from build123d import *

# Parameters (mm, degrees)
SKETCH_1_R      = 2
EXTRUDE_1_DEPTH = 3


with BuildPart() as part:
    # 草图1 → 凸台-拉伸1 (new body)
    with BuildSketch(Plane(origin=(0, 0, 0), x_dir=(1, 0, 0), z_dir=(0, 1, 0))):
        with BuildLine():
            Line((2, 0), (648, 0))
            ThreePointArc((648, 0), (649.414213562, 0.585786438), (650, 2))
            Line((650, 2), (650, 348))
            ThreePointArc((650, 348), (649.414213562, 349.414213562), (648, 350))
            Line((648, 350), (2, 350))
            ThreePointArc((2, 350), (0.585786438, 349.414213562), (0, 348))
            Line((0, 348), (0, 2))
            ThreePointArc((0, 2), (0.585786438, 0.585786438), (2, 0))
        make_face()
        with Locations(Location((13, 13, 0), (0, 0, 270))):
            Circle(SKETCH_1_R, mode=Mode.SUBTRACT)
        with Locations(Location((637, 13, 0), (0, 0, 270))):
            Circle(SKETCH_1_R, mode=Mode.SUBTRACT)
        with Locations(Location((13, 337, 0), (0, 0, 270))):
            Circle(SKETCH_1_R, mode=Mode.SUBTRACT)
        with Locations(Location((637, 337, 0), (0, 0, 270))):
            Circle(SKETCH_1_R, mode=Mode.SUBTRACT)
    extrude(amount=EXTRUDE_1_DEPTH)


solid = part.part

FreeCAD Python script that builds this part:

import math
import FreeCAD as App
import Part
import Sketcher
Q = App.Units.Quantity

doc = App.newDocument("Part")
params = doc.addObject("Spreadsheet::Sheet", "Params")
for row, (alias, value) in enumerate([
    ("sketch1_diameter", "4 mm"),
    ("sketch1_width", "646 mm"),
    ("sketch1_height", "346 mm"),
    ("pad1_length", "3 mm"),
], start=1):
    params.set(f"A{row}", alias)
    params.set(f"B{row}", "=" + value)
    params.setAlias(f"B{row}", alias)

body = doc.addObject("PartDesign::Body", "Body")

# Sketch on XZ plane
sketch1 = doc.addObject("Sketcher::SketchObject", "Sketch")
body.addObject(sketch1)
sketch1.AttachmentSupport = (doc.XZ_Plane, [""])
sketch1.MapMode = "FlatFace"
sketch1.addGeometry(Part.LineSegment(App.Vector(2, 0, 0), App.Vector(648, 0, 0)), False)
sketch1.addGeometry(Part.ArcOfCircle(Part.Circle(App.Vector(648, -2, 0), App.Vector(0, 0, 1), 2), math.radians(0), math.radians(90)), False)
sketch1.addGeometry(Part.LineSegment(App.Vector(650, -2, 0), App.Vector(650, -348, 0)), False)
sketch1.addGeometry(Part.ArcOfCircle(Part.Circle(App.Vector(648, -348, 0), App.Vector(0, 0, 1), 2), math.radians(-90), math.radians(0)), False)
sketch1.addGeometry(Part.LineSegment(App.Vector(648, -350, 0), App.Vector(2, -350, 0)), False)
sketch1.addGeometry(Part.ArcOfCircle(Part.Circle(App.Vector(2, -348, 0), App.Vector(0, 0, 1), 2), math.radians(-180), math.radians(-90)), False)
sketch1.addGeometry(Part.LineSegment(App.Vector(0, -348, 0), App.Vector(0, -2, 0)), False)
sketch1.addGeometry(Part.ArcOfCircle(Part.Circle(App.Vector(2, -2, 0), App.Vector(0, 0, 1), 2), math.radians(90), math.radians(180)), False)
sketch1.addGeometry(Part.Circle(App.Vector(13, -13, 0), App.Vector(0, 0, 1), 2), False)
sketch1.addGeometry(Part.Circle(App.Vector(637, -13, 0), App.Vector(0, 0, 1), 2), False)
sketch1.addGeometry(Part.Circle(App.Vector(13, -337, 0), App.Vector(0, 0, 1), 2), False)
sketch1.addGeometry(Part.Circle(App.Vector(637, -337, 0), App.Vector(0, 0, 1), 2), False)
sketch1.addConstraint(Sketcher.Constraint("Tangent", 0, 2, 1, 2))
sketch1.addConstraint(Sketcher.Constraint("Tangent", 1, 1, 2, 1))
sketch1.addConstraint(Sketcher.Constraint("Tangent", 2, 2, 3, 2))
sketch1.addConstraint(Sketcher.Constraint("Tangent", 3, 1, 4, 1))
sketch1.addConstraint(Sketcher.Constraint("Tangent", 4, 2, 5, 2))
sketch1.addConstraint(Sketcher.Constraint("Tangent", 5, 1, 6, 1))
sketch1.addConstraint(Sketcher.Constraint("Tangent", 6, 2, 7, 2))
sketch1.addConstraint(Sketcher.Constraint("Tangent", 7, 1, 0, 1))
sketch1.addConstraint(Sketcher.Constraint("Horizontal", 0))
sketch1.addConstraint(Sketcher.Constraint("Vertical", 2))
sketch1.addConstraint(Sketcher.Constraint("Horizontal", 4))
sketch1.addConstraint(Sketcher.Constraint("Vertical", 6))
sketch1.addConstraint(Sketcher.Constraint("Equal", 1, 3))
sketch1.addConstraint(Sketcher.Constraint("Equal", 3, 5))
sketch1.addConstraint(Sketcher.Constraint("Equal", 5, 7))
sketch1.addConstraint(Sketcher.Constraint("Equal", 7, 8))
sketch1.addConstraint(Sketcher.Constraint("Equal", 8, 9))
sketch1.addConstraint(Sketcher.Constraint("Equal", 9, 10))
sketch1.addConstraint(Sketcher.Constraint("Equal", 10, 11))
sketch1.addConstraint(Sketcher.Constraint("PointOnObject", 0, 2, -1))
sketch1.addConstraint(Sketcher.Constraint("PointOnObject", 5, 1, -2))
sketch1.addConstraint(Sketcher.Constraint("Horizontal", 8, 3, 9, 3))
sketch1.addConstraint(Sketcher.Constraint("Horizontal", 10, 3, 11, 3))
sketch1.addConstraint(Sketcher.Constraint("Vertical", 8, 3, 10, 3))
sketch1.addConstraint(Sketcher.Constraint("Vertical", 9, 3, 11, 3))
sketch1.addConstraint(Sketcher.Constraint("Diameter", 8, Q("4 mm")))
sketch1.addConstraint(Sketcher.Constraint("DistanceX", 0, 1, 0, 2, Q("646 mm")))
sketch1.addConstraint(Sketcher.Constraint("DistanceY", 2, 2, 2, 1, Q("346 mm")))
sketch1.addConstraint(Sketcher.Constraint("DistanceX", -1, 1, 8, 3, Q("13 mm")))
sketch1.addConstraint(Sketcher.Constraint("DistanceY", 8, 3, -1, 1, Q("13 mm")))
sketch1.addConstraint(Sketcher.Constraint("DistanceX", -1, 1, 9, 3, Q("637 mm")))
sketch1.addConstraint(Sketcher.Constraint("DistanceY", 10, 3, -1, 1, Q("337 mm")))
sketch1.setExpression("Constraints[25]", "Params.sketch1_diameter")
sketch1.setExpression("Constraints[26]", "Params.sketch1_width")
sketch1.setExpression("Constraints[27]", "Params.sketch1_height")
pad1 = doc.addObject("PartDesign::Pad", "Pad")
body.addObject(pad1)
pad1.Profile = sketch1
pad1.setExpression("Length", "Params.pad1_length")
pad1.Reversed = True

doc.recompute()
